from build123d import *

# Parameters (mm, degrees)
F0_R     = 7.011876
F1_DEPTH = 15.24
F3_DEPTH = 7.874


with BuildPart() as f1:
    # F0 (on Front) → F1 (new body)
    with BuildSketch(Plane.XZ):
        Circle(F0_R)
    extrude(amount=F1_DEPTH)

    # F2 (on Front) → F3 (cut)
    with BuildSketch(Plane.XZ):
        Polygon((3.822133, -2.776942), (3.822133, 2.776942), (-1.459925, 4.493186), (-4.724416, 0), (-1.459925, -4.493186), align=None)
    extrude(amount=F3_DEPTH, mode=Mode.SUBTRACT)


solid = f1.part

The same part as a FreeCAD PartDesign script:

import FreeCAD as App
import Part
import Sketcher
from FreeCAD import Vector
Q = App.Units.Quantity

doc = App.newDocument("Part")
body = doc.addObject("PartDesign::Body", "Body")

sketch1 = body.newObject("Sketcher::SketchObject", "Sketch")
sketch1.AttachmentSupport = (doc.getObject("XZ_Plane"), [""])
sketch1.MapMode = "FlatFace"
sketch1.addGeometry(Part.Circle(Vector(0, 0, 0), Vector(0, 0, 1), 7.011876), False)
sketch1.addConstraint(Sketcher.Constraint("Coincident", 0, 3, -1, 1))
sketch1.addConstraint(Sketcher.Constraint("Diameter", 0, Q("14.023752 mm")))
pad1 = body.newObject("PartDesign::Pad", "Pad")
pad1.Profile = sketch1
pad1.Length = Q("0.6 in")

sketch2 = body.newObject("Sketcher::SketchObject", "Sketch001")
sketch2.AttachmentSupport = (doc.getObject("XZ_Plane"), [""])
sketch2.MapMode = "FlatFace"
sketch2.addGeometry(Part.LineSegment(Vector(3.822133, -2.776942, 0), Vector(3.822133, 2.776942, 0)), False)
sketch2.addGeometry(Part.LineSegment(Vector(3.822133, 2.776942, 0), Vector(-1.459925, 4.493186, 0)), False)
sketch2.addGeometry(Part.LineSegment(Vector(-1.459925, 4.493186, 0), Vector(-4.724416, 0, 0)), False)
sketch2.addGeometry(Part.LineSegment(Vector(-4.724416, 0, 0), Vector(-1.459925, -4.493186, 0)), False)
sketch2.addGeometry(Part.LineSegment(Vector(-1.459925, -4.493186, 0), Vector(3.822133, -2.776942, 0)), False)
sketch2.addConstraint(Sketcher.Constraint("Coincident", 0, 2, 1, 1))
sketch2.addConstraint(Sketcher.Constraint("Coincident", 1, 2, 2, 1))
sketch2.addConstraint(Sketcher.Constraint("Coincident", 2, 2, 3, 1))
sketch2.addConstraint(Sketcher.Constraint("Coincident", 3, 2, 4, 1))
sketch2.addConstraint(Sketcher.Constraint("Coincident", 4, 2, 0, 1))
sketch2.addConstraint(Sketcher.Constraint("Vertical", 0))
sketch2.addConstraint(Sketcher.Constraint("Symmetric", 1, 2, 3, 2, -1))
sketch2.addConstraint(Sketcher.Constraint("PointOnObject", 2, 2, -1))
sketch2.addConstraint(Sketcher.Constraint("Equal", 1, 2))
sketch2.addConstraint(Sketcher.Constraint("Equal", 3, 4))
sketch2.addConstraint(Sketcher.Constraint("Angle", 1, Q("162.000007 deg")))
sketch2.addConstraint(Sketcher.Constraint("Angle", 2, Q("-126.000002 deg")))
sketch2.addConstraint(Sketcher.Constraint("DistanceY", 0, 1, 0, 2, Q("5.553884 mm")))
sketch2.addConstraint(Sketcher.Constraint("DistanceX", -1, 1, 0, 2, Q("3.822133 mm")))
pocket1 = body.newObject("PartDesign::Pocket", "Pocket")
pocket1.Profile = sketch2
pocket1.Length = Q("0.31 in")
pocket1.Reversed = True

doc.recompute()
